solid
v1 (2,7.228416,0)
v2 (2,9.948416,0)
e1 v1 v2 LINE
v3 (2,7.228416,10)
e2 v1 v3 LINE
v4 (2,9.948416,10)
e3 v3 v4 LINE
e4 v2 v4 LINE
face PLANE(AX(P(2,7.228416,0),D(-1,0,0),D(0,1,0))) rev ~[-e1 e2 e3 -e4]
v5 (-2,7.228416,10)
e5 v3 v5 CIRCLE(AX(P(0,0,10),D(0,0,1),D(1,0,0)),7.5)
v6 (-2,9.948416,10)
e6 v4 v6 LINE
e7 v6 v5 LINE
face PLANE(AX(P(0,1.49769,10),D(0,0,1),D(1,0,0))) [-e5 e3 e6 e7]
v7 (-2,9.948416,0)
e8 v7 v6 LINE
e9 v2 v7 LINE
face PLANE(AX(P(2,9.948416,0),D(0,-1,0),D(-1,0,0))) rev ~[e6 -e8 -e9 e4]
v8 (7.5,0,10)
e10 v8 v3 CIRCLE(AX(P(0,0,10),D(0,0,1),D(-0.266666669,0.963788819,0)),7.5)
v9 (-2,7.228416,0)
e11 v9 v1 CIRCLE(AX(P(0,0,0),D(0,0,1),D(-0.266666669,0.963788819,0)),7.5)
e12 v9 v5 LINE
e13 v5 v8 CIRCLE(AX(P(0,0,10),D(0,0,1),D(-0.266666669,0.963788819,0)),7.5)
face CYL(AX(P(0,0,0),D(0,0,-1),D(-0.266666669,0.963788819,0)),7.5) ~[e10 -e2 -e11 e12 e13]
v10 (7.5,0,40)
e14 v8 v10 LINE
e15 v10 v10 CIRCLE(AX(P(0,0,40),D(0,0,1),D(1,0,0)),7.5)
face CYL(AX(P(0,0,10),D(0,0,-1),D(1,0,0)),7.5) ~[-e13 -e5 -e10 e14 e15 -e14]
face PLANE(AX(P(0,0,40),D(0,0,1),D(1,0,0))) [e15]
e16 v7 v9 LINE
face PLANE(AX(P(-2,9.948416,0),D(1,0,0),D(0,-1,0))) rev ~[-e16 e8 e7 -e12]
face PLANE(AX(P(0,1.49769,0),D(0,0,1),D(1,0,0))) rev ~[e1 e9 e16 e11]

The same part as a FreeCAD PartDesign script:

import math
import FreeCAD as App
import Part
import Sketcher
from FreeCAD import Vector
Q = App.Units.Quantity

doc = App.newDocument("Part")
body = doc.addObject("PartDesign::Body", "Body")

sketch1 = body.newObject("Sketcher::SketchObject", "Sketch")
sketch1.AttachmentSupport = (doc.getObject("XY_Plane"), [""])
sketch1.MapMode = "FlatFace"
sketch1.addGeometry(Part.LineSegment(Vector(-2, 9.948416, 0), Vector(-2, 7.228416, 0)), False)
sketch1.addGeometry(Part.ArcOfCircle(Part.Circle(Vector(0, 0, 0), Vector(0, 0, 1), 7.5), math.radians(105.46601), math.radians(434.53399)), False)
sketch1.addGeometry(Part.LineSegment(Vector(2, 7.228416, 0), Vector(2, 9.948416, 0)), False)
sketch1.addGeometry(Part.LineSegment(Vector(2, 9.948416, 0), Vector(-2, 9.948416, 0)), False)
sketch1.addConstraint(Sketcher.Constraint("Coincident", 0, 2, 1, 1))
sketch1.addConstraint(Sketcher.Constraint("Coincident", 1, 2, 2, 1))
sketch1.addConstraint(Sketcher.Constraint("Coincident", 2, 2, 3, 1))
sketch1.addConstraint(Sketcher.Constraint("Coincident", 3, 2, 0, 1))
sketch1.addConstraint(Sketcher.Constraint("Vertical", 0))
sketch1.addConstraint(Sketcher.Constraint("Vertical", 2))
sketch1.addConstraint(Sketcher.Constraint("Horizontal", 3))
sketch1.addConstraint(Sketcher.Constraint("Coincident", 1, 3, -1, 1))
sketch1.addConstraint(Sketcher.Constraint("Horizontal", 0, 2, 1, 2))
sketch1.addConstraint(Sketcher.Constraint("Radius", 1, Q("7.5 mm")))
sketch1.addConstraint(Sketcher.Constraint("DistanceX", 3, 2, 3, 1, Q("4 mm")))
sketch1.addConstraint(Sketcher.Constraint("DistanceY", 0, 2, 0, 1, Q("2.72 mm")))
pad1 = body.newObject("PartDesign::Pad", "Pad")
pad1.Profile = sketch1
pad1.Length = 10

sketch2 = body.newObject("Sketcher::SketchObject", "Sketch001")
sketch2.AttachmentSupport = (doc.getObject("XY_Plane"), [""])
sketch2.MapMode = "FlatFace"
sketch2.AttachmentOffset = App.Placement(Vector(0, 0, 10), App.Rotation())
sketch2.addGeometry(Part.Circle(Vector(0, 0, 0), Vector(0, 0, 1), 7.5), False)
sketch2.addConstraint(Sketcher.Constraint("Coincident", 0, 3, -1, 1))
sketch2.addConstraint(Sketcher.Constraint("Diameter", 0, Q("15 mm")))
pad2 = body.newObject("PartDesign::Pad", "Pad001")
pad2.Profile = sketch2
pad2.Length = 30

doc.recompute()
